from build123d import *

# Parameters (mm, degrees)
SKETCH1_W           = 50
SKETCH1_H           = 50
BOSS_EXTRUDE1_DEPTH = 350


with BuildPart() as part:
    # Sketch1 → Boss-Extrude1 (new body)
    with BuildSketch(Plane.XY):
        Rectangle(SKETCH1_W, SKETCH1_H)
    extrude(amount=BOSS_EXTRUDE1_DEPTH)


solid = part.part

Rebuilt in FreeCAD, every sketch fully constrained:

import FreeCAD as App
import Part
import Sketcher

V = App.Vector
Q = App.Units.Quantity

doc = App.newDocument("Part")
body = doc.addObject("PartDesign::Body", "Body")

sketch1 = body.newObject("Sketcher::SketchObject", "Sketch")
sketch1.AttachmentSupport = (doc.getObject("XY_Plane"), [""])
sketch1.MapMode = "FlatFace"
sketch1.addGeometry(Part.LineSegment(V(-25, 25, 0), V(-25, -25, 0)), False)
sketch1.addGeometry(Part.LineSegment(V(-25, -25, 0), V(25, -25, 0)), False)
sketch1.addGeometry(Part.LineSegment(V(25, -25, 0), V(25, 25, 0)), False)
sketch1.addGeometry(Part.LineSegment(V(25, 25, 0), V(-25, 25, 0)), False)
sketch1.addConstraint(Sketcher.Constraint("Coincident", 0, 2, 1, 1))
sketch1.addConstraint(Sketcher.Constraint("Coincident", 1, 2, 2, 1))
sketch1.addConstraint(Sketcher.Constraint("Coincident", 2, 2, 3, 1))
sketch1.addConstraint(Sketcher.Constraint("Coincident", 3, 2, 0, 1))
sketch1.addConstraint(Sketcher.Constraint("Vertical", 0))
sketch1.addConstraint(Sketcher.Constraint("Horizontal", 1))
sketch1.addConstraint(Sketcher.Constraint("Vertical", 2))
sketch1.addConstraint(Sketcher.Constraint("Horizontal", 3))
sketch1.addConstraint(Sketcher.Constraint("Symmetric", 0, 2, 2, 2, -1, 1))
sketch1.addConstraint(Sketcher.Constraint("Equal", 3, 0))
sketch1.addConstraint(Sketcher.Constraint("DistanceX", 1, 1, 1, 2, Q("50 mm")))
pad1 = body.newObject("PartDesign::Pad", "Pad")
pad1.Profile = sketch1
pad1.Length = 350

doc.recompute()
